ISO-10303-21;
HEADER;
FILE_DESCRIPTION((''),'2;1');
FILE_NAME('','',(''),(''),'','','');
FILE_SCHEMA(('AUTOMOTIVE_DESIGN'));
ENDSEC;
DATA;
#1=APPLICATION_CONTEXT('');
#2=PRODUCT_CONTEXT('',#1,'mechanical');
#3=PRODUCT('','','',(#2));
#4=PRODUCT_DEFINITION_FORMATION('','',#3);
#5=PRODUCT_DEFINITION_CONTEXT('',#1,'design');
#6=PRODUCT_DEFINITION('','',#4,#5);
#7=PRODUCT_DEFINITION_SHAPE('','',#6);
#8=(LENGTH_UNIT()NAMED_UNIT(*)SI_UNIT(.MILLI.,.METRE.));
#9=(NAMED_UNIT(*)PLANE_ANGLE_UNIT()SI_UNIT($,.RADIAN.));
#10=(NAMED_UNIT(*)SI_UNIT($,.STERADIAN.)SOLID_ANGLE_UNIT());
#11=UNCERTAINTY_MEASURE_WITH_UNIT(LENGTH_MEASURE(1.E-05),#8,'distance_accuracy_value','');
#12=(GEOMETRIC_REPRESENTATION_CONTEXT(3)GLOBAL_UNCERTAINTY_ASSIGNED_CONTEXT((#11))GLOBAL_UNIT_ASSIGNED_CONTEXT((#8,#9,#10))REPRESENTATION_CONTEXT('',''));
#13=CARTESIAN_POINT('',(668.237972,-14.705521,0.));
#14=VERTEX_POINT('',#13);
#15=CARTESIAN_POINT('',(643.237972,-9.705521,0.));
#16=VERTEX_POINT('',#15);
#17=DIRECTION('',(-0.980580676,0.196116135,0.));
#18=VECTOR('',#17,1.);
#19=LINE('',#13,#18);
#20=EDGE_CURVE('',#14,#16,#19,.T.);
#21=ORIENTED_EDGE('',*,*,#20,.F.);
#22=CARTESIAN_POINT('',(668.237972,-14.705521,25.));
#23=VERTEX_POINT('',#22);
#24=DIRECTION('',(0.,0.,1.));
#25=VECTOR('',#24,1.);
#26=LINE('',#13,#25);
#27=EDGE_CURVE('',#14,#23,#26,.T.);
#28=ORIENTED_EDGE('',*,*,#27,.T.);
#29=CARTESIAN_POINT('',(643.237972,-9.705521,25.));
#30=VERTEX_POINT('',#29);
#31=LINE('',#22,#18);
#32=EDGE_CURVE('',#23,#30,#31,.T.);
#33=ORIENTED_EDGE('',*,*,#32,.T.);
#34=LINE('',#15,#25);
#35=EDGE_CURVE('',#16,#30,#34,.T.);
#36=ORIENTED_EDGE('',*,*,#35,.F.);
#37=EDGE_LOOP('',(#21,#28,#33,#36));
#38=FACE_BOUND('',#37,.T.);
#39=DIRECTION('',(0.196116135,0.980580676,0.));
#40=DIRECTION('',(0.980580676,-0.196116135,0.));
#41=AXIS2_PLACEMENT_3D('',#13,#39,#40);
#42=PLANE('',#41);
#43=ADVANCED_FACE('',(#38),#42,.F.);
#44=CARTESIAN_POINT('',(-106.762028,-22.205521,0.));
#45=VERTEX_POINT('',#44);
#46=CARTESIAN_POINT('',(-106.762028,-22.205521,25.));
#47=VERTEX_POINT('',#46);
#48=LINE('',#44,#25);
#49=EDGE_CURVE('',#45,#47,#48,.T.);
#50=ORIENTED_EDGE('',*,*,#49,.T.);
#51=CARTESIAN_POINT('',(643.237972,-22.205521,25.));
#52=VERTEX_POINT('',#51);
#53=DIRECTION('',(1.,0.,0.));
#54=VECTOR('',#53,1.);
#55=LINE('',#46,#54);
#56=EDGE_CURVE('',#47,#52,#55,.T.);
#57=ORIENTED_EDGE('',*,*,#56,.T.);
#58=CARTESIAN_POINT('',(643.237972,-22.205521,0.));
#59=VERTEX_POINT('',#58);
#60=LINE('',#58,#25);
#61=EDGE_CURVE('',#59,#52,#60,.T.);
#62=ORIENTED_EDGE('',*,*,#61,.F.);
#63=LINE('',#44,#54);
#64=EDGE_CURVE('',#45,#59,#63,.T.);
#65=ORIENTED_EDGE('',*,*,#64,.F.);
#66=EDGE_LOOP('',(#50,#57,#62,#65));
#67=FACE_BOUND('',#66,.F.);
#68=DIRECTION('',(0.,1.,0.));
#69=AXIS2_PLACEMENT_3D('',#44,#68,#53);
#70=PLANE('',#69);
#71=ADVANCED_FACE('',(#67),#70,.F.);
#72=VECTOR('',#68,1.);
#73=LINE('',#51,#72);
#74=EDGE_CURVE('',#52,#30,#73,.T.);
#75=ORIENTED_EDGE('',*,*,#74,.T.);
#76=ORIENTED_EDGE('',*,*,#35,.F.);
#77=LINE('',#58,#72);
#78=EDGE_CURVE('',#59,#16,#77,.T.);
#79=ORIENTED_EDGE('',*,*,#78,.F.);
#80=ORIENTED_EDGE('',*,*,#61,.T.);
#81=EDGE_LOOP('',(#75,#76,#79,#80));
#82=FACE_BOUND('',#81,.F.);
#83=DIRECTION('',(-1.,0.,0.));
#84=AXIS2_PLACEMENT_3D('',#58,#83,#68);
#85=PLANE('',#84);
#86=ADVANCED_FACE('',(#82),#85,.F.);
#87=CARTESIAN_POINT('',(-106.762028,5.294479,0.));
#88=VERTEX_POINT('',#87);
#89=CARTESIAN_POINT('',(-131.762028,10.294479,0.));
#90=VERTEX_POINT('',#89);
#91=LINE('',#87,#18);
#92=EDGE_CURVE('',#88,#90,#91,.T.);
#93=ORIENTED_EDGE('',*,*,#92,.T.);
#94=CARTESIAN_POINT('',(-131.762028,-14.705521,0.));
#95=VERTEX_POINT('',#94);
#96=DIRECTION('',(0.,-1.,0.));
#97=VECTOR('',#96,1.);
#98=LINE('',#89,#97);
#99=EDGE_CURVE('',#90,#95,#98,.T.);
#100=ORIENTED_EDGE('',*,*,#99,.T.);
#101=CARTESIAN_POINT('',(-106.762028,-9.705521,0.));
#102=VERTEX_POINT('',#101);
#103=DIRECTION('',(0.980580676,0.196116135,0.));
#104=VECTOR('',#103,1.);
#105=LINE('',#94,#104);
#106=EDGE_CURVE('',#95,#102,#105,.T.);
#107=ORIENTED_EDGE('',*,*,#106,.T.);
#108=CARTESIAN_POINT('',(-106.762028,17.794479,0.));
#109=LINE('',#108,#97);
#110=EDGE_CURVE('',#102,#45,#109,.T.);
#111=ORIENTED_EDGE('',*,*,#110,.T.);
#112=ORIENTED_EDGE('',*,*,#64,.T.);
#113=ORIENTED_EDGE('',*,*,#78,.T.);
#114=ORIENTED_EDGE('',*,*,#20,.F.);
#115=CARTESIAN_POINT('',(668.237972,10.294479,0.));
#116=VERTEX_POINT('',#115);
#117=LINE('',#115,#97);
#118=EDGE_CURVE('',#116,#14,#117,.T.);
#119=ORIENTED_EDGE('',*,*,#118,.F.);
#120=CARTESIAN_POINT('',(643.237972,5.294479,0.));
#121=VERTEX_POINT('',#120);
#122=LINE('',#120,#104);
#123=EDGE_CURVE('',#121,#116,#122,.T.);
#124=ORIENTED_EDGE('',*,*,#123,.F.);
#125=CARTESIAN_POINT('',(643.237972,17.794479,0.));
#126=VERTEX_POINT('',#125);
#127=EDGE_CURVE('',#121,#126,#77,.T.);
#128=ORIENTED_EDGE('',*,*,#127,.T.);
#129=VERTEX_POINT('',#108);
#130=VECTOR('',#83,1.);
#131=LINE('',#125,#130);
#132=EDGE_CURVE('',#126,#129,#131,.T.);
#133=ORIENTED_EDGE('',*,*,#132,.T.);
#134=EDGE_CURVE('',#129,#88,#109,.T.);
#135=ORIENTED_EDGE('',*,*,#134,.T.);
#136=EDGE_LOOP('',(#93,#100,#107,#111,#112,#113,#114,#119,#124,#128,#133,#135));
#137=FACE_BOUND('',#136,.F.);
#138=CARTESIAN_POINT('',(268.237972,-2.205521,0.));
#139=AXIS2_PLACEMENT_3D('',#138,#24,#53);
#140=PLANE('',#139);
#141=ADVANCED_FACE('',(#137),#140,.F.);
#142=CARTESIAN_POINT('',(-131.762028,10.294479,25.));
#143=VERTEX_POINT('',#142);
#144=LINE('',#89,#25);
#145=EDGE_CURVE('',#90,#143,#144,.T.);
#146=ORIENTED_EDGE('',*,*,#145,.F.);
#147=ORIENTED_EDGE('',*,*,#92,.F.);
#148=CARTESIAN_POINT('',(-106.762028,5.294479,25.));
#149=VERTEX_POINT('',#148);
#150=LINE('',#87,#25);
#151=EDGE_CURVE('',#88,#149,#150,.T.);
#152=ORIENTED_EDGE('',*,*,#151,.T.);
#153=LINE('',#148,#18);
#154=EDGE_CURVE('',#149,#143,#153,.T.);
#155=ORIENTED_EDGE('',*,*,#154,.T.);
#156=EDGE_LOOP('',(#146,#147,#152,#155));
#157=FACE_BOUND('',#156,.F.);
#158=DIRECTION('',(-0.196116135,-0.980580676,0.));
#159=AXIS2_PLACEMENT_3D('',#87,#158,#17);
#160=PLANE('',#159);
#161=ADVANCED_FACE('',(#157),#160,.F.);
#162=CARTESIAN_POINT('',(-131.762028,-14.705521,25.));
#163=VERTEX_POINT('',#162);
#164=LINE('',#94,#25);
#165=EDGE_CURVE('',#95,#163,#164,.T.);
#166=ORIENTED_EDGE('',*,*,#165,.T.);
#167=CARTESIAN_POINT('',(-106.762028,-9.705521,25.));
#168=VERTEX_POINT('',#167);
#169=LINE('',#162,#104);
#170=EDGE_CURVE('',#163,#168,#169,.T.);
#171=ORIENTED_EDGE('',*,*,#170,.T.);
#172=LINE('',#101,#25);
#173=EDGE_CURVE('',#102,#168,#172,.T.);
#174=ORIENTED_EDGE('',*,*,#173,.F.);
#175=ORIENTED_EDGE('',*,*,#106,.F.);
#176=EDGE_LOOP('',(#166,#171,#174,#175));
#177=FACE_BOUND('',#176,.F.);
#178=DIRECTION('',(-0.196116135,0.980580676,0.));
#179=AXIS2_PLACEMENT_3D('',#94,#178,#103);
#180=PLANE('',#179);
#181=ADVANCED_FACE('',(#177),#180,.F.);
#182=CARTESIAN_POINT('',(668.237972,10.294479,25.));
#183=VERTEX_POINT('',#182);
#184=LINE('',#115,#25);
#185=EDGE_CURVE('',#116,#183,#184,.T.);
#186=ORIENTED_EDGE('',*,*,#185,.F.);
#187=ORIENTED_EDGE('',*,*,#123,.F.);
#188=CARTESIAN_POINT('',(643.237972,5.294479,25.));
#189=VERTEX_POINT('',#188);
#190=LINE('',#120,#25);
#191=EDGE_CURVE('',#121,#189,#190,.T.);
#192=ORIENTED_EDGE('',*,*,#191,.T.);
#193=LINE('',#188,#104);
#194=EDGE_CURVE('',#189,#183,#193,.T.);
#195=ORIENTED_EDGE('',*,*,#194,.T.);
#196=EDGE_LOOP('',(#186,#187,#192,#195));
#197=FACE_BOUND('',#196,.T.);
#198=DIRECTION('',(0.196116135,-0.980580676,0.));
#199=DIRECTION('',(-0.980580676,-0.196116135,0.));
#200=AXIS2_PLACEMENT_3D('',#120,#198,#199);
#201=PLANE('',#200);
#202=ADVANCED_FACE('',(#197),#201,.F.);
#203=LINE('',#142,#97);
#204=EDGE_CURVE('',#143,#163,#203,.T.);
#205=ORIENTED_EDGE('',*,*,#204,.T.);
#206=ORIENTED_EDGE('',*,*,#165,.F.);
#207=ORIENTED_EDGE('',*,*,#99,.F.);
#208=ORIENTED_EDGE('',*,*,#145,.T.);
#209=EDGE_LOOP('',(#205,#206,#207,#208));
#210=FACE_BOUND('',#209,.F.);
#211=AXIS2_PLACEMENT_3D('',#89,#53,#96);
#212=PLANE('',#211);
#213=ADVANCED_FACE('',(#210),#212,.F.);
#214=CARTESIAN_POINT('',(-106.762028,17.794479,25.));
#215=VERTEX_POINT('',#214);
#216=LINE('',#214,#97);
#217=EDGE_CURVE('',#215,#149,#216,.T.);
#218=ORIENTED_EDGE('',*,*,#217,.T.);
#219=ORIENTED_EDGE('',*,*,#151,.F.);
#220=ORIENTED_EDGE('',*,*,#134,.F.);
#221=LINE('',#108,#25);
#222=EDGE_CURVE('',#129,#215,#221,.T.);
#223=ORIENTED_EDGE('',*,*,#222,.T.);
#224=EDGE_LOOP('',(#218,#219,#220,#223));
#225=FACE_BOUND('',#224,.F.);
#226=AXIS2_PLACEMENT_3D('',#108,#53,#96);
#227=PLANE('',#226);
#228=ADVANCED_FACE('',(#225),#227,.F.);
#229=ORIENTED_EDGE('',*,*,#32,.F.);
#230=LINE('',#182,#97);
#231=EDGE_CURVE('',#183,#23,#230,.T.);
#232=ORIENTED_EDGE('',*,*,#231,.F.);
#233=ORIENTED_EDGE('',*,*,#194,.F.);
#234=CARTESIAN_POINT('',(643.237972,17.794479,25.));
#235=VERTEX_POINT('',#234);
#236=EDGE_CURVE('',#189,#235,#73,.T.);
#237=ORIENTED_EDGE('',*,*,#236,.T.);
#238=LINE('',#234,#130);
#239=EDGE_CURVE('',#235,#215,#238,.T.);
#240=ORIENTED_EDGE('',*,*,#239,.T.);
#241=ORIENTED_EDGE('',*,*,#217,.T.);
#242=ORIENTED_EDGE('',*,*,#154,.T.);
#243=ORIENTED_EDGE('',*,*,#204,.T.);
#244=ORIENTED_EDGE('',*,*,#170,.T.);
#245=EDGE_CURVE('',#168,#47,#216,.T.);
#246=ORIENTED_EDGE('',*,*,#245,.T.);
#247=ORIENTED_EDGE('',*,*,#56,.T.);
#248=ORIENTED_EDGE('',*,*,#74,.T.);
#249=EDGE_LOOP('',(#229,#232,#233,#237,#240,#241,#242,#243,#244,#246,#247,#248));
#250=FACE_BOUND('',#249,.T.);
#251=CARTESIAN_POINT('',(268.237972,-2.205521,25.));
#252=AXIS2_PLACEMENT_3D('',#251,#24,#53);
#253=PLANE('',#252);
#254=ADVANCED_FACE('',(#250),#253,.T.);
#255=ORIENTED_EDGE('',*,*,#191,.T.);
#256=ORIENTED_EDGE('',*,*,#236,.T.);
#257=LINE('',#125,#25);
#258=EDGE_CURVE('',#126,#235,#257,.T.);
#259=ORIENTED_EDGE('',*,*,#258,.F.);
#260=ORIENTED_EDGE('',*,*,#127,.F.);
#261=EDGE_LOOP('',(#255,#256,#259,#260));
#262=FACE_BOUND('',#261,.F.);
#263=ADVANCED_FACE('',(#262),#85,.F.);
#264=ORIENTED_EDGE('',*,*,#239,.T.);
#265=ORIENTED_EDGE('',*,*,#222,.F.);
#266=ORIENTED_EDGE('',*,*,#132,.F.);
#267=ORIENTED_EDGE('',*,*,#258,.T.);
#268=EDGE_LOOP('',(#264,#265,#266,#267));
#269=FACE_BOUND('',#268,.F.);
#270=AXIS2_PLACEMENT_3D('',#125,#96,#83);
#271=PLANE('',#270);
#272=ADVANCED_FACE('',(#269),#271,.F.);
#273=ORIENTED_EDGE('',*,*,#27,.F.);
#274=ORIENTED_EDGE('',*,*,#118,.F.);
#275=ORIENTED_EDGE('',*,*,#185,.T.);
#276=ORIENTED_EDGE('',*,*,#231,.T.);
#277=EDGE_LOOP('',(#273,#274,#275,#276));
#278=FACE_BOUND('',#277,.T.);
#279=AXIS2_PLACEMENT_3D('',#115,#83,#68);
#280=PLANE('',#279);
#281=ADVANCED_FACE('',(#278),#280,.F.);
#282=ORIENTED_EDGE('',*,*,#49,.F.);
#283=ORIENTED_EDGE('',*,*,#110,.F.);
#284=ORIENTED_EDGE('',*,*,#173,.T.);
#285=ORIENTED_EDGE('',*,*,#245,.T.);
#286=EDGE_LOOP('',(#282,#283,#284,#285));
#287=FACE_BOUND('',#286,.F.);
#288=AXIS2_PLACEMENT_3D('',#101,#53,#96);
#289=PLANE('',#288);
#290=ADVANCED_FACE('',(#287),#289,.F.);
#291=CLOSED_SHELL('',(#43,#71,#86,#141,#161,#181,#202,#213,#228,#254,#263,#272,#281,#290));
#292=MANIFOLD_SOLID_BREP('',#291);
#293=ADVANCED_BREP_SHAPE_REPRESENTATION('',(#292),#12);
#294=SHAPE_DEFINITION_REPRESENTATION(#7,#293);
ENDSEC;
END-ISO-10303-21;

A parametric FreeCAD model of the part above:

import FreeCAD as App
import Part
import Sketcher
Q = App.Units.Quantity

doc = App.newDocument("Part")
body = doc.addObject("PartDesign::Body", "Body")

# Sketch on XY plane
sketch1 = body.newObject("Sketcher::SketchObject", "Sketch")
sketch1.AttachmentSupport = (doc.getObject("XY_Plane"), [""])
sketch1.MapMode = "FlatFace"
sketch1.addGeometry(Part.LineSegment(App.Vector(643.237972, 17.794479, 0), App.Vector(-106.762028, 17.794479, 0)), False)
sketch1.addGeometry(Part.LineSegment(App.Vector(-106.762028, 17.794479, 0), App.Vector(-106.762028, 5.294479, 0)), False)
sketch1.addGeometry(Part.LineSegment(App.Vector(-106.762028, 5.294479, 0), App.Vector(-131.762028, 10.294479, 0)), False)
sketch1.addGeometry(Part.LineSegment(App.Vector(-131.762028, 10.294479, 0), App.Vector(-131.762028, -14.705521, 0)), False)
sketch1.addGeometry(Part.LineSegment(App.Vector(-131.762028, -14.705521, 0), App.Vector(-106.762028, -9.705521, 0)), False)
sketch1.addGeometry(Part.LineSegment(App.Vector(-106.762028, -9.705521, 0), App.Vector(-106.762028, -22.205521, 0)), False)
sketch1.addGeometry(Part.LineSegment(App.Vector(-106.762028, -22.205521, 0), App.Vector(643.237972, -22.205521, 0)), False)
sketch1.addGeometry(Part.LineSegment(App.Vector(643.237972, -22.205521, 0), App.Vector(643.237972, 17.794479, 0)), False)
sketch1.addConstraint(Sketcher.Constraint("Coincident", 0, 2, 1, 1))
sketch1.addConstraint(Sketcher.Constraint("Coincident", 1, 2, 2, 1))
sketch1.addConstraint(Sketcher.Constraint("Coincident", 2, 2, 3, 1))
sketch1.addConstraint(Sketcher.Constraint("Coincident", 3, 2, 4, 1))
sketch1.addConstraint(Sketcher.Constraint("Coincident", 4, 2, 5, 1))
sketch1.addConstraint(Sketcher.Constraint("Coincident", 5, 2, 6, 1))
sketch1.addConstraint(Sketcher.Constraint("Coincident", 6, 2, 7, 1))
sketch1.addConstraint(Sketcher.Constraint("Coincident", 7, 2, 0, 1))
sketch1.addConstraint(Sketcher.Constraint("Horizontal", 0))
sketch1.addConstraint(Sketcher.Constraint("Vertical", 1))
sketch1.addConstraint(Sketcher.Constraint("Vertical", 3))
sketch1.addConstraint(Sketcher.Constraint("Vertical", 5))
sketch1.addConstraint(Sketcher.Constraint("Horizontal", 6))
sketch1.addConstraint(Sketcher.Constraint("Vertical", 7))
sketch1.addConstraint(Sketcher.Constraint("Vertical", 1, 2, 4, 2))
sketch1.addConstraint(Sketcher.Constraint("Equal", 1, 5))
sketch1.addConstraint(Sketcher.Constraint("Equal", 2, 4))
sketch1.addConstraint(Sketcher.Constraint("DistanceX", 0, 2, 0, 1, Q("750 mm")))
sketch1.addConstraint(Sketcher.Constraint("DistanceY", 3, 2, 3, 1, Q("25 mm")))
sketch1.addConstraint(Sketcher.Constraint("DistanceY", 7, 1, 7, 2, Q("40 mm")))
sketch1.addConstraint(Sketcher.Constraint("DistanceY", 1, 2, 1, 1, Q("12.5 mm")))
sketch1.addConstraint(Sketcher.Constraint("DistanceX", 2, 2, 1, 2, Q("25 mm")))
sketch1.addConstraint(Sketcher.Constraint("DistanceY", -1, 1, 0, 2, Q("17.794479 mm")))
sketch1.addConstraint(Sketcher.Constraint("DistanceX", 0, 2, -1, 1, Q("106.762028 mm")))
pad1 = body.newObject("PartDesign::Pad", "Pad")
pad1.Profile = sketch1
pad1.Length = 25
body2 = doc.addObject("PartDesign::Body", "Body001")
doc.recompute()

body2.BaseFeature = body
doc.recompute()

mirroring = doc.addObject("Part::Mirroring", "Mirroring")
mirroring.Source = body
mirroring.Base = App.Vector(268.237972, -22.205521, 25)
mirroring.Normal = App.Vector(1, 0, 0)
body3 = doc.addObject("PartDesign::Body", "Body002")
body3.BaseFeature = mirroring
boolean = body2.newObject("PartDesign::Boolean", "Boolean")
boolean.Type = "Fuse"
boolean.addObjects([body3])
doc.recompute()
mirroring.Visibility = False

doc.recompute()
